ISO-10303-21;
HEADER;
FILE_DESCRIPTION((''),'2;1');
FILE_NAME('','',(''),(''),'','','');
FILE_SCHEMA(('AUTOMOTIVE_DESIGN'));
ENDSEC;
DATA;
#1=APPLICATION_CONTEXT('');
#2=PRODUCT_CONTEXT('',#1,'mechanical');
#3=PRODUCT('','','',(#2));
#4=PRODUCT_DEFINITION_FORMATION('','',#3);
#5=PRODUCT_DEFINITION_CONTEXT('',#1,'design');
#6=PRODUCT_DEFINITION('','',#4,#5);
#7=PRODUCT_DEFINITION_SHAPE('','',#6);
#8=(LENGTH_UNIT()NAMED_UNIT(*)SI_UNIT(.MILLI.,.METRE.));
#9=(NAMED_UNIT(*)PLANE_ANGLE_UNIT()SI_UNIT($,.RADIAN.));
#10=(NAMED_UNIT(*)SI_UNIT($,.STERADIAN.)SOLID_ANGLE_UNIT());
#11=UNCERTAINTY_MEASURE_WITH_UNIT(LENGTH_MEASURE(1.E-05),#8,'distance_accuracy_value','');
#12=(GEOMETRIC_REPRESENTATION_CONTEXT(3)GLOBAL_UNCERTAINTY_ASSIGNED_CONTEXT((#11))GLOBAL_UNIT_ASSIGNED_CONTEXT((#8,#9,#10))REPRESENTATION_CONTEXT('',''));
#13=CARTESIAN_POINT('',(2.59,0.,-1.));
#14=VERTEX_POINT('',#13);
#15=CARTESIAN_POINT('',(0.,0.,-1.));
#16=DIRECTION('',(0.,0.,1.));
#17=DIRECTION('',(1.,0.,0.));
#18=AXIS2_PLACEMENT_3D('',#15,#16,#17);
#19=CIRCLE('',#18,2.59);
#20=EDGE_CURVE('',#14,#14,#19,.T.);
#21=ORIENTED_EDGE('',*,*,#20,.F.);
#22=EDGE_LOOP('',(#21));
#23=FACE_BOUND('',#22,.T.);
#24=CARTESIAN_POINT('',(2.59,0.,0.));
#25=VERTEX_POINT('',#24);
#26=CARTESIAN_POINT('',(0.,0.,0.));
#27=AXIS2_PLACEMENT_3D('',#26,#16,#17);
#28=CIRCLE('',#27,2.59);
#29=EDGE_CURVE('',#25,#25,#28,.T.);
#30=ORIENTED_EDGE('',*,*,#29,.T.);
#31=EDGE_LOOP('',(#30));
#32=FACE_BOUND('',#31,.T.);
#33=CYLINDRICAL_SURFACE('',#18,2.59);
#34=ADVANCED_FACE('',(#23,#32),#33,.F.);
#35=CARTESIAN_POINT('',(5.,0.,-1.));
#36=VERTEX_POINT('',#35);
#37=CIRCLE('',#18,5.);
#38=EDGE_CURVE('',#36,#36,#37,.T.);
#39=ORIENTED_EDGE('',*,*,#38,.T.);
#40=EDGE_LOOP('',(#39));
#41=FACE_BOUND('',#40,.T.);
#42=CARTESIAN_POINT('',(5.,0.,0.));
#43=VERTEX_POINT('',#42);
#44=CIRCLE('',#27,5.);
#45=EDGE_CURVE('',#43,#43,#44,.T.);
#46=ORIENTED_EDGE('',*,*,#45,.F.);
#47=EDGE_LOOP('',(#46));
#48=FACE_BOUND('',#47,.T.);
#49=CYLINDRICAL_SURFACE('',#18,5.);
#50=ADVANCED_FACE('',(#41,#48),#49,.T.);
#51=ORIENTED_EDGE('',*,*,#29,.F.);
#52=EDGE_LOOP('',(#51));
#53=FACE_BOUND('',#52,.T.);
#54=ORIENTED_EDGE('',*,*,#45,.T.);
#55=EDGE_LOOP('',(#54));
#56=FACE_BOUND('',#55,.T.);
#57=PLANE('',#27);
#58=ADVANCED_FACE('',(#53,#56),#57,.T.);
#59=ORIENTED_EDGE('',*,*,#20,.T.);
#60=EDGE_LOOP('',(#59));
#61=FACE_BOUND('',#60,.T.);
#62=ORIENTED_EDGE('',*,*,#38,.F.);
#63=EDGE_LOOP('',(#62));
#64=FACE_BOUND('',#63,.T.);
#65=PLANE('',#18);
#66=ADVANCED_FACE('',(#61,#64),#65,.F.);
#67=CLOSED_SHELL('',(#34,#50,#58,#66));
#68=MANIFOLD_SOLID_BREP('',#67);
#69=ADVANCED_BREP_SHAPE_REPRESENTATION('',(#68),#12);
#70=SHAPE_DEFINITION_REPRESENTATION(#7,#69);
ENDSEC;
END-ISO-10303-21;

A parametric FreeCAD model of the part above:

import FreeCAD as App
import Part
import Sketcher
Q = App.Units.Quantity

doc = App.newDocument("Part")
body = doc.addObject("PartDesign::Body", "Body")

sketch1 = body.newObject("Sketcher::SketchObject", "Sketch")
sketch1.AttachmentSupport = (doc.getObject("XY_Plane"), [""])
sketch1.MapMode = "FlatFace"
sketch1.addGeometry([
    Part.Circle(App.Vector(0, 0, 0), App.Vector(0, 0, 1), 5),
    Part.Circle(App.Vector(0, 0, 0), App.Vector(0, 0, 1), 2.6),
], False)
sketch1.addConstraint([
    Sketcher.Constraint("Coincident", 0, 3, -1, 1),
    Sketcher.Constraint("Coincident", 1, 3, -1, 1),
    Sketcher.Constraint("Diameter", 0, Q("10 mm")),
    Sketcher.Constraint("Diameter", 1, Q("5.18 mm")),
])
pad1 = body.newObject("PartDesign::Pad", "Pad")
pad1.Profile = sketch1
pad1.Length = 1
pad1.Reversed = True

doc.recompute()
